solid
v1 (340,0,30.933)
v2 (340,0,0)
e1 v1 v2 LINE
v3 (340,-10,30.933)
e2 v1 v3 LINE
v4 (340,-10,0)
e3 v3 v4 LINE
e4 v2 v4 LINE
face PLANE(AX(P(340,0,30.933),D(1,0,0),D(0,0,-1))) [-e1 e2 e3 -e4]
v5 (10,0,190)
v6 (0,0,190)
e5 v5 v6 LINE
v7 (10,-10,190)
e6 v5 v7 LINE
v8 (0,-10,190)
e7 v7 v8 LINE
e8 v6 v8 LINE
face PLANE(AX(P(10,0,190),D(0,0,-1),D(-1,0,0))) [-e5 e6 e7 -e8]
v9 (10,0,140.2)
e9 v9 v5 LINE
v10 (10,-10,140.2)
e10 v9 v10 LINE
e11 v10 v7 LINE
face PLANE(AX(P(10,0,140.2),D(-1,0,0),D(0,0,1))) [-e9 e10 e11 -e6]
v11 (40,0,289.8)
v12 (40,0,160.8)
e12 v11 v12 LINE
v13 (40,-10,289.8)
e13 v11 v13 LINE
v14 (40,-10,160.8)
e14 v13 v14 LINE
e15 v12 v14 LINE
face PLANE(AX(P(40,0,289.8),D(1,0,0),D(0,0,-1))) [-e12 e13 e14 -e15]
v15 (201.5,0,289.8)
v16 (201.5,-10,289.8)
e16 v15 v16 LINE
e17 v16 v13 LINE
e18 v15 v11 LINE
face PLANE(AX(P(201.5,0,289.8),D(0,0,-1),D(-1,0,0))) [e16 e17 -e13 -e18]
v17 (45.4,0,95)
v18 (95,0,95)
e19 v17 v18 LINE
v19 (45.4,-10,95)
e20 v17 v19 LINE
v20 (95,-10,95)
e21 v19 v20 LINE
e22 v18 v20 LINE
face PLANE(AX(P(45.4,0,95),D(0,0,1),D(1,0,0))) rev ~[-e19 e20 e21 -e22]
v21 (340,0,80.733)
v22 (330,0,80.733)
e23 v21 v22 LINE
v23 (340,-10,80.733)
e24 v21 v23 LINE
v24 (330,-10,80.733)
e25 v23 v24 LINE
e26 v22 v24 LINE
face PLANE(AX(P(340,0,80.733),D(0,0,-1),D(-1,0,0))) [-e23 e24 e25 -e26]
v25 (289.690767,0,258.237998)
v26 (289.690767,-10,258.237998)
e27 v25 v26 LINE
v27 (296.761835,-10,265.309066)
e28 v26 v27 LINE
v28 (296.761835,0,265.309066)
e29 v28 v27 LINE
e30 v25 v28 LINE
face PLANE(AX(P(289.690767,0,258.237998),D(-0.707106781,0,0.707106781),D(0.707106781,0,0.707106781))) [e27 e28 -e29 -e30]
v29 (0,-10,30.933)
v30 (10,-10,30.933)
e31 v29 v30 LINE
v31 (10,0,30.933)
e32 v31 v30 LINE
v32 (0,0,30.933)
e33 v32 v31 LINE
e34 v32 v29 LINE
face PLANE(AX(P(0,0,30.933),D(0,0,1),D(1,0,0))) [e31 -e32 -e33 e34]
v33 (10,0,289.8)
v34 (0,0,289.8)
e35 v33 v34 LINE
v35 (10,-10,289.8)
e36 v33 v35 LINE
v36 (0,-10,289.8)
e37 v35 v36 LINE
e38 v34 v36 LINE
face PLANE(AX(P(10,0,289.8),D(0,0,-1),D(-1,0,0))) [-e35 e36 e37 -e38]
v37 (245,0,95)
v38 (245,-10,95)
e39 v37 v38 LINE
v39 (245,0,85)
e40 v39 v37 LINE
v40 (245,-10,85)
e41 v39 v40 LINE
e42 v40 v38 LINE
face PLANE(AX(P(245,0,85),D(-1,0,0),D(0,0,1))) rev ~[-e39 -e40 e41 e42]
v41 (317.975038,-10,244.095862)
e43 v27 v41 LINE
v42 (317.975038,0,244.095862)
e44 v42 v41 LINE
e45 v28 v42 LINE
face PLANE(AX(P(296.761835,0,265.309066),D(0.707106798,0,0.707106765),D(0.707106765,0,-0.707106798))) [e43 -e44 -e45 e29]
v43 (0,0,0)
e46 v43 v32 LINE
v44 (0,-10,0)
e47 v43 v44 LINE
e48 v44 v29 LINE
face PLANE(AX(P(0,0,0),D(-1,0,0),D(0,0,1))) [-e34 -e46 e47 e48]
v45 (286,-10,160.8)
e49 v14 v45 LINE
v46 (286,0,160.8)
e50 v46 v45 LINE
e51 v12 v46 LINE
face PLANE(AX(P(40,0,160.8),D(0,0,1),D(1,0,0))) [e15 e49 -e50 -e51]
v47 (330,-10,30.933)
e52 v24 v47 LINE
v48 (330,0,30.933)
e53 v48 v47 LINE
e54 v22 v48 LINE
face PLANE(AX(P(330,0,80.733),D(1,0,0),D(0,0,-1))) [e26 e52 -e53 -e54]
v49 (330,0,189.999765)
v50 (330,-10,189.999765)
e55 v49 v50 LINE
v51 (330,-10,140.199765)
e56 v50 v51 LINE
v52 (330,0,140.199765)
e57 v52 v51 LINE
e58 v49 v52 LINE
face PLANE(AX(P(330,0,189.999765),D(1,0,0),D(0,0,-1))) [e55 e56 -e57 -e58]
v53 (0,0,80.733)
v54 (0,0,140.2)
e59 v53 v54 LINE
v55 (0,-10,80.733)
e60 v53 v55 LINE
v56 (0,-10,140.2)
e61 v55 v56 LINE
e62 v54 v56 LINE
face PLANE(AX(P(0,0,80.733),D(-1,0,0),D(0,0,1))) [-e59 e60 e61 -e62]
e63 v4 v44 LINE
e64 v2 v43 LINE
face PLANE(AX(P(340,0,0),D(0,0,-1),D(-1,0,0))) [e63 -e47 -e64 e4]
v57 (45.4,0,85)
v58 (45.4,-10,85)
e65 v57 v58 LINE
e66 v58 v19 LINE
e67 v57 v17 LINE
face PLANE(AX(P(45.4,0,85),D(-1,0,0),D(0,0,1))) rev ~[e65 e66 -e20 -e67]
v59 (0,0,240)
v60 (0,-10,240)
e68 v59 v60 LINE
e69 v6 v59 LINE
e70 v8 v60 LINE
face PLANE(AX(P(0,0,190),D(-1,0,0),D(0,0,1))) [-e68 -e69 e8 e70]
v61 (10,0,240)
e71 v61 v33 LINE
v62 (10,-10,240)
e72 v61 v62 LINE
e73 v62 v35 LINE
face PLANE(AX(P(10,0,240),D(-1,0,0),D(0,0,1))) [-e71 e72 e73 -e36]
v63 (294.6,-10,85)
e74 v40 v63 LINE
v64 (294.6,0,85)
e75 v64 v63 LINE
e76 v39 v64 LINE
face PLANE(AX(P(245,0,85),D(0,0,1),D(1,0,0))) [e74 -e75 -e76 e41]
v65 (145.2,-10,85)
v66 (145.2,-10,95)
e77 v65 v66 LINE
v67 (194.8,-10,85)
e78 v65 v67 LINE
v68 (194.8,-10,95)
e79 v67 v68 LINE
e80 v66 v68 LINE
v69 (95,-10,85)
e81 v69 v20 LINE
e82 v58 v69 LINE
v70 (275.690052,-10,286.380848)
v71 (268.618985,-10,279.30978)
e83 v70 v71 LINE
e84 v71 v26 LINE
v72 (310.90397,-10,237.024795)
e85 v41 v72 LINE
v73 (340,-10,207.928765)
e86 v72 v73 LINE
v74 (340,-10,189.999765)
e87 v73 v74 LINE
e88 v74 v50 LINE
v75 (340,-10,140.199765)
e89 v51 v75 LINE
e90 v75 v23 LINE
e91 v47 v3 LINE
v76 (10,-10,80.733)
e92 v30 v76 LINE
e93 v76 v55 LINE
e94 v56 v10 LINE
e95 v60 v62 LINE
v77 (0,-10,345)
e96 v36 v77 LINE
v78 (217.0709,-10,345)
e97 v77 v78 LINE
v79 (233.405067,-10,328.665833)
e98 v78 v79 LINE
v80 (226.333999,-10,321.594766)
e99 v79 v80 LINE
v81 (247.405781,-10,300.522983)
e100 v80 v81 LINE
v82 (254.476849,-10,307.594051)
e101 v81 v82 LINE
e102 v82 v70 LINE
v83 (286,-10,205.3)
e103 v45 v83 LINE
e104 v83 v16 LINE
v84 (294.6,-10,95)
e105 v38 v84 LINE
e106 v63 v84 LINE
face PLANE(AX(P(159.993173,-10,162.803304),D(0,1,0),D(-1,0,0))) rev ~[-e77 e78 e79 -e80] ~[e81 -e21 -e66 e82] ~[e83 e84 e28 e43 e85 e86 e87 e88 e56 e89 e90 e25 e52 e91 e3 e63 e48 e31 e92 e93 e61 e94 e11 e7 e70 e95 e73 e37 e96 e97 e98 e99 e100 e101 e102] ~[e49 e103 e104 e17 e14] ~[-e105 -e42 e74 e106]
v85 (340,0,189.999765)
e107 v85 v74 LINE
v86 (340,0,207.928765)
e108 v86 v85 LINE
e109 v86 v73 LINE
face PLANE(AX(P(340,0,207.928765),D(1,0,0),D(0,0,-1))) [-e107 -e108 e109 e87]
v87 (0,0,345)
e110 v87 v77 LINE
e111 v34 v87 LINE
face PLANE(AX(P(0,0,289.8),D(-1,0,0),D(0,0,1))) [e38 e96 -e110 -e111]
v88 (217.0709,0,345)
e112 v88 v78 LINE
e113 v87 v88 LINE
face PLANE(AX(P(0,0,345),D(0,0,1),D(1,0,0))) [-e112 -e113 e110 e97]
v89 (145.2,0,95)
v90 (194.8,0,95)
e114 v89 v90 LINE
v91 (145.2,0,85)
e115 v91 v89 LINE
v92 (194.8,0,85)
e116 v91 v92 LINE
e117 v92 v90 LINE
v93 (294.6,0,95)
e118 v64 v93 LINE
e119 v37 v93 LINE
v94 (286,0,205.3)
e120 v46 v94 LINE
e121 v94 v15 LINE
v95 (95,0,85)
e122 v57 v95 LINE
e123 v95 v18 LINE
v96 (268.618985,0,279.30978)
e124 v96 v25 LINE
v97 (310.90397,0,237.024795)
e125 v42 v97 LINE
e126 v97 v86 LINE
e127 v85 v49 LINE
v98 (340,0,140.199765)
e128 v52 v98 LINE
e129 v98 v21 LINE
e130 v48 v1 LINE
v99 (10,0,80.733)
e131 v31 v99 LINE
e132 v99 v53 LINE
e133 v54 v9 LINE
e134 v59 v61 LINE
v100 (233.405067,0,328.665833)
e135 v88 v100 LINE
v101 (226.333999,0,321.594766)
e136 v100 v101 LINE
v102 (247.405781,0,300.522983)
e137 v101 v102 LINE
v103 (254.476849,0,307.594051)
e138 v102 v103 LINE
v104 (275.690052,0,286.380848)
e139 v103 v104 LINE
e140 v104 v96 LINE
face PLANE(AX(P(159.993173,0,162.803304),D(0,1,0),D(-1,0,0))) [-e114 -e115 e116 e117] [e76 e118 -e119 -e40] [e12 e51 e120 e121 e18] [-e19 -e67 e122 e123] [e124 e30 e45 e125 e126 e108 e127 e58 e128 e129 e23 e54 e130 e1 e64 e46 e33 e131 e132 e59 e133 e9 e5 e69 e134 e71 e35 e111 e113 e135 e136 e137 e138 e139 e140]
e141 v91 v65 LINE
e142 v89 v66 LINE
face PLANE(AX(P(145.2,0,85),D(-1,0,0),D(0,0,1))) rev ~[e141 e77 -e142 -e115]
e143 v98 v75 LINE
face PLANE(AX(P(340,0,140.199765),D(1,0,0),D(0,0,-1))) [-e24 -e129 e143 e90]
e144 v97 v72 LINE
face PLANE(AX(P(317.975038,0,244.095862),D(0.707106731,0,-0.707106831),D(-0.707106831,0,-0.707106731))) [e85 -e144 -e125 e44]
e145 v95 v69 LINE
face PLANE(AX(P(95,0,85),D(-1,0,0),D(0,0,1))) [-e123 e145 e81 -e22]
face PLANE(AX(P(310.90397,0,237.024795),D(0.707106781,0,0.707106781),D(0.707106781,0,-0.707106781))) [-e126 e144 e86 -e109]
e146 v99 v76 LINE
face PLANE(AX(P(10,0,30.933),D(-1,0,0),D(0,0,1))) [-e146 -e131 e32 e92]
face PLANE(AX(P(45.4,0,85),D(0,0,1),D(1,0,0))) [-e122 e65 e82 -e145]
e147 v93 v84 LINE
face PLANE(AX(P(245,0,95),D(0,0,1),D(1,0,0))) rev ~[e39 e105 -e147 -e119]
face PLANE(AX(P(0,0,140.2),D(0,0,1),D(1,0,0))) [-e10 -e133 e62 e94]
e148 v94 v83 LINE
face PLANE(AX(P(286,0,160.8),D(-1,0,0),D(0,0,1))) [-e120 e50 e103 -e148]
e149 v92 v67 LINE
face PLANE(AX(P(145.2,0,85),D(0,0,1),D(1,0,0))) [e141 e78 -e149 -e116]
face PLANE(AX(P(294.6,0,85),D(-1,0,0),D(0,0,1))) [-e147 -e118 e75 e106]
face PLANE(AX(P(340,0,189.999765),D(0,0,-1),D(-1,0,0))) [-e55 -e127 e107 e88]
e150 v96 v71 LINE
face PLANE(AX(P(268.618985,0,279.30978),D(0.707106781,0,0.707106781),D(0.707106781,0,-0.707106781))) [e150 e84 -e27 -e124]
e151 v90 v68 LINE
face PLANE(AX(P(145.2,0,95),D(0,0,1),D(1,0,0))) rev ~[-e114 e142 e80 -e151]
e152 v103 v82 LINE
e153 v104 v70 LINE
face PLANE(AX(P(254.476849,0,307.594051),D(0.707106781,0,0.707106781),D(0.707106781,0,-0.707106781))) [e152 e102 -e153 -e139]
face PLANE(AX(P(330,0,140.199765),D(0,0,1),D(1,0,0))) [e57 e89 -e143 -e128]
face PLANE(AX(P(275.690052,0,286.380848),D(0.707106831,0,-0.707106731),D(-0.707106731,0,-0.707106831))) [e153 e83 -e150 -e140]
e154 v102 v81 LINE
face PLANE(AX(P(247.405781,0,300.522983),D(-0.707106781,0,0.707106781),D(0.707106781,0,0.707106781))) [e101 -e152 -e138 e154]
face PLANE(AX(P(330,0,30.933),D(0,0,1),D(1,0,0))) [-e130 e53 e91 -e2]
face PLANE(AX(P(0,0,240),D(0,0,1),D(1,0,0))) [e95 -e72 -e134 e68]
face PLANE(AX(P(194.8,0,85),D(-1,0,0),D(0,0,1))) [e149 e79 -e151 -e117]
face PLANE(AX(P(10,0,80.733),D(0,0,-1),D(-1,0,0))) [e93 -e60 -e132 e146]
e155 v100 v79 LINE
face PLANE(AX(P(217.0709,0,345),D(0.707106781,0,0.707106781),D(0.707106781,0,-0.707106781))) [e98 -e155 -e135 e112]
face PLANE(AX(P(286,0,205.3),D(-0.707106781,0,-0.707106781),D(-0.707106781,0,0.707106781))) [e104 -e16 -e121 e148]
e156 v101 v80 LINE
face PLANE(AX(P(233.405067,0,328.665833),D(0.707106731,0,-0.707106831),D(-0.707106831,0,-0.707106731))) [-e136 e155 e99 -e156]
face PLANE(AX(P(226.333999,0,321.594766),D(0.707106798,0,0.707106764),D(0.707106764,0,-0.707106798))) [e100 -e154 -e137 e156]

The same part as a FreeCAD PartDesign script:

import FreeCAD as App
import Part
import Sketcher

V = App.Vector
Q = App.Units.Quantity


def add_polygon(sketch, points):
    """Adds a closed chain of lines whose ends are joined by coincident constraints."""
    first, n = sketch.GeometryCount, len(points)
    for a, b in zip(points, points[1:] + points[:1]):
        sketch.addGeometry(Part.LineSegment(App.Vector(*a, 0), App.Vector(*b, 0)), False)
    for i in range(n):
        sketch.addConstraint(Sketcher.Constraint("Coincident", first + i, 2, first + (i + 1) % n, 1))

doc = App.newDocument("Part")
body = doc.addObject("PartDesign::Body", "Body")

# Sketch on XZ plane
sketch1 = doc.addObject("Sketcher::SketchObject", "Sketch")
body.addObject(sketch1)
sketch1.AttachmentSupport = (doc.XZ_Plane, [""])
sketch1.MapMode = "FlatFace"
add_polygon(sketch1, [(0, 31), (0, 0), (340, 0), (340, 31), (330, 31), (330, 81), (340, 81), (340, 140), (330, 140), (330, 190), (340, 190), (340, 208), (311, 237), (318, 244), (297, 265), (290, 258), (269, 279), (276, 286), (254, 308), (247, 301), (226, 322), (233, 329), (217, 345), (0, 345), (0, 290), (10, 290), (10, 240), (0, 240), (0, 190), (10, 190), (10, 140), (0, 140), (0, 81), (10, 81), (10, 31)])  # lines 0-34
add_polygon(sketch1, [(245, 85), (245, 95), (295, 95), (295, 85)])  # lines 35-38
add_polygon(sketch1, [(145, 85), (145, 95), (195, 95), (195, 85)])  # lines 39-42
add_polygon(sketch1, [(45, 85), (45, 95), (95, 95), (95, 85)])  # lines 43-46
add_polygon(sketch1, [(40, 290), (202, 290), (286, 205), (286, 161), (40, 161)])  # lines 47-51
sketch1.addConstraint(Sketcher.Constraint("Vertical", 0))
sketch1.addConstraint(Sketcher.Constraint("Horizontal", 1))
sketch1.addConstraint(Sketcher.Constraint("Vertical", 2))
sketch1.addConstraint(Sketcher.Constraint("Horizontal", 3))
sketch1.addConstraint(Sketcher.Constraint("Vertical", 4))
sketch1.addConstraint(Sketcher.Constraint("Horizontal", 5))
sketch1.addConstraint(Sketcher.Constraint("Vertical", 6))
sketch1.addConstraint(Sketcher.Constraint("Horizontal", 7))
sketch1.addConstraint(Sketcher.Constraint("Vertical", 8))
sketch1.addConstraint(Sketcher.Constraint("Horizontal", 9))
sketch1.addConstraint(Sketcher.Constraint("Vertical", 10))
sketch1.addConstraint(Sketcher.Constraint("Horizontal", 22))
sketch1.addConstraint(Sketcher.Constraint("Vertical", 23))
sketch1.addConstraint(Sketcher.Constraint("Horizontal", 24))
sketch1.addConstraint(Sketcher.Constraint("Vertical", 25))
sketch1.addConstraint(Sketcher.Constraint("Horizontal", 26))
sketch1.addConstraint(Sketcher.Constraint("Vertical", 27))
sketch1.addConstraint(Sketcher.Constraint("Horizontal", 28))
sketch1.addConstraint(Sketcher.Constraint("Vertical", 29))
sketch1.addConstraint(Sketcher.Constraint("Horizontal", 30))
sketch1.addConstraint(Sketcher.Constraint("Vertical", 31))
sketch1.addConstraint(Sketcher.Constraint("Horizontal", 32))
sketch1.addConstraint(Sketcher.Constraint("Vertical", 33))
sketch1.addConstraint(Sketcher.Constraint("Horizontal", 34))
sketch1.addConstraint(Sketcher.Constraint("Vertical", 35))
sketch1.addConstraint(Sketcher.Constraint("Horizontal", 36))
sketch1.addConstraint(Sketcher.Constraint("Vertical", 37))
sketch1.addConstraint(Sketcher.Constraint("Horizontal", 38))
sketch1.addConstraint(Sketcher.Constraint("Vertical", 39))
sketch1.addConstraint(Sketcher.Constraint("Horizontal", 40))
sketch1.addConstraint(Sketcher.Constraint("Vertical", 41))
sketch1.addConstraint(Sketcher.Constraint("Horizontal", 42))
sketch1.addConstraint(Sketcher.Constraint("Vertical", 43))
sketch1.addConstraint(Sketcher.Constraint("Horizontal", 44))
sketch1.addConstraint(Sketcher.Constraint("Vertical", 45))
sketch1.addConstraint(Sketcher.Constraint("Horizontal", 46))
sketch1.addConstraint(Sketcher.Constraint("Horizontal", 47))
sketch1.addConstraint(Sketcher.Constraint("Vertical", 49))
sketch1.addConstraint(Sketcher.Constraint("Horizontal", 50))
sketch1.addConstraint(Sketcher.Constraint("Vertical", 51))
sketch1.addConstraint(Sketcher.Constraint("Coincident", 0, 2, -1, 1))
sketch1.addConstraint(Sketcher.Constraint("PointOnObject", 22, 2, -2))
sketch1.addConstraint(Sketcher.Constraint("PointOnObject", 26, 2, -2))
sketch1.addConstraint(Sketcher.Constraint("PointOnObject", 30, 2, -2))
sketch1.addConstraint(Sketcher.Constraint("Perpendicular", 11, 12))
sketch1.addConstraint(Sketcher.Constraint("Perpendicular", 12, 13))
sketch1.addConstraint(Sketcher.Constraint("Perpendicular", 13, 14))
sketch1.addConstraint(Sketcher.Constraint("Perpendicular", 14, 15))
sketch1.addConstraint(Sketcher.Constraint("Perpendicular", 15, 16))
sketch1.addConstraint(Sketcher.Constraint("Perpendicular", 16, 17))
sketch1.addConstraint(Sketcher.Constraint("Perpendicular", 17, 18))
sketch1.addConstraint(Sketcher.Constraint("Perpendicular", 18, 19))
sketch1.addConstraint(Sketcher.Constraint("Perpendicular", 19, 20))
sketch1.addConstraint(Sketcher.Constraint("Perpendicular", 20, 21))
sketch1.addConstraint(Sketcher.Constraint("Parallel", 21, 48))
sketch1.addConstraint(Sketcher.Constraint("Horizontal", 5, 2, 31, 2))
sketch1.addConstraint(Sketcher.Constraint("Horizontal", 3, 2, 33, 2))
sketch1.addConstraint(Sketcher.Constraint("Horizontal", 36, 2, 39, 2))
sketch1.addConstraint(Sketcher.Constraint("Horizontal", 38, 2, 41, 2))
sketch1.addConstraint(Sketcher.Constraint("Horizontal", 40, 2, 43, 2))
sketch1.addConstraint(Sketcher.Constraint("Horizontal", 42, 2, 45, 2))
sketch1.addConstraint(Sketcher.Constraint("Horizontal", 24, 2, 47, 2))
sketch1.addConstraint(Sketcher.Constraint("Vertical", 2, 2, 5, 2))
sketch1.addConstraint(Sketcher.Constraint("Vertical", 4, 2, 7, 2))
sketch1.addConstraint(Sketcher.Constraint("Vertical", 6, 2, 9, 2))
sketch1.addConstraint(Sketcher.Constraint("Vertical", 25, 2, 28, 2))
sketch1.addConstraint(Sketcher.Constraint("Vertical", 29, 2, 32, 2))
sketch1.addConstraint(Sketcher.Constraint("Equal", 9, 24))
sketch1.addConstraint(Sketcher.Constraint("Equal", 38, 40))
sketch1.addConstraint(Sketcher.Constraint("Equal", 42, 44))
sketch1.addConstraint(Sketcher.Constraint("Equal", 4, 8))
sketch1.addConstraint(Sketcher.Constraint("Equal", 8, 25))
sketch1.addConstraint(Sketcher.Constraint("Equal", 25, 29))
sketch1.addConstraint(Sketcher.Constraint("Equal", 34, 35))
sketch1.addConstraint(Sketcher.Constraint("Equal", 12, 14))
sketch1.addConstraint(Sketcher.Constraint("Equal", 14, 16))
sketch1.addConstraint(Sketcher.Constraint("Equal", 13, 17))
sketch1.addConstraint(Sketcher.Constraint("Equal", 16, 18))
sketch1.addConstraint(Sketcher.Constraint("Equal", 15, 19))
sketch1.addConstraint(Sketcher.Constraint("Equal", 18, 20))
sketch1.addConstraint(Sketcher.Constraint("DistanceX", 1, 1, 1, 2, Q("340 mm")))
sketch1.addConstraint(Sketcher.Constraint("DistanceX", 3, 2, 3, 1, Q("10 mm")))
sketch1.addConstraint(Sketcher.Constraint("DistanceX", 50, 2, 50, 1, Q("246 mm")))
sketch1.addConstraint(Sketcher.Constraint("DistanceY", 27, 2, 27, 1, Q("50 mm")))
sketch1.addConstraint(Sketcher.Constraint("DistanceY", 51, 1, 51, 2, Q("129 mm")))
sketch1.addConstraint(Sketcher.Constraint("Angle", 11, Q("135 deg")))
sketch1.addConstraint(Sketcher.Constraint("Distance", 12, Q("10 mm")))
sketch1.addConstraint(Sketcher.Constraint("Distance", 13, Q("30 mm")))
sketch1.addConstraint(Sketcher.Constraint("DistanceX", 36, 1, 36, 2, Q("49.6 mm")))
sketch1.addConstraint(Sketcher.Constraint("DistanceX", 47, 1, 47, 2, Q("161.5 mm")))
sketch1.addConstraint(Sketcher.Constraint("DistanceY", 4, 1, 4, 2, Q("49.8 mm")))
sketch1.addConstraint(Sketcher.Constraint("DistanceY", 23, 2, 23, 1, Q("55.2 mm")))
sketch1.addConstraint(Sketcher.Constraint("DistanceY", -1, 1, 21, 2, Q("345 mm")))
sketch1.addConstraint(Sketcher.Constraint("DistanceX", -1, 1, 35, 2, Q("245 mm")))
sketch1.addConstraint(Sketcher.Constraint("DistanceY", -1, 1, 35, 2, Q("95 mm")))
sketch1.addConstraint(Sketcher.Constraint("DistanceX", -1, 1, 44, 2, Q("95 mm")))
sketch1.addConstraint(Sketcher.Constraint("DistanceX", -1, 1, 48, 2, Q("286 mm")))
sketch1.addConstraint(Sketcher.Constraint("Distance", 15, Q("29.8 mm")))
sketch1.addConstraint(Sketcher.Constraint("Distance", 21, Q("23.100001 mm")))
sketch1.addConstraint(Sketcher.Constraint("DistanceX", -1, 1, 39, 2, Q("145.2 mm")))
sketch1.addConstraint(Sketcher.Constraint("DistanceY", 0, 2, 0, 1, Q("30.933 mm")))
sketch1.addConstraint(Sketcher.Constraint("DistanceY", 10, 1, 10, 2, Q("17.929 mm")))
sketch1.addConstraint(Sketcher.Constraint("Distance", 11, Q("41.148 mm")))
pad1 = doc.addObject("PartDesign::Pad", "Pad")
body.addObject(pad1)
pad1.Profile = sketch1
pad1.Length = 10

doc.recompute()
